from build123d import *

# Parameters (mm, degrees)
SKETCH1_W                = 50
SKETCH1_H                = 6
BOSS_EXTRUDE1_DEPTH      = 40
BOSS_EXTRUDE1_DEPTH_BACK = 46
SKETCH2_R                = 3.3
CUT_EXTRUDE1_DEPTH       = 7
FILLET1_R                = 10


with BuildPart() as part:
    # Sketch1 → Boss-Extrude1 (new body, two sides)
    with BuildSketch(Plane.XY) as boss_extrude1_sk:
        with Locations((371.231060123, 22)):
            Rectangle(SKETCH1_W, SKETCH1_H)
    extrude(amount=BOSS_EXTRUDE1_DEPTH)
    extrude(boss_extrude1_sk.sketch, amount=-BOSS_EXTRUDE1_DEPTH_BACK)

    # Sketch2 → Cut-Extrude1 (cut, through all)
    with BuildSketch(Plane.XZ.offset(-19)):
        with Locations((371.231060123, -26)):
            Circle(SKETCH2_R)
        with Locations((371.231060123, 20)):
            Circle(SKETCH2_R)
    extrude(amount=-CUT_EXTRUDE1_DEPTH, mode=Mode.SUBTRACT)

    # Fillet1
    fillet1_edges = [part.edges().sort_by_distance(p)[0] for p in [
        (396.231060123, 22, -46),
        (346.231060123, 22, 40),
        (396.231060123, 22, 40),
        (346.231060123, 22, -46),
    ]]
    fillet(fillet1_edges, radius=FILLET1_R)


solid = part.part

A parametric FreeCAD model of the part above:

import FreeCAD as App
import Part
import Sketcher

V = App.Vector


def edges_at(feature, points):
    """Names of the edges that pass closest to the given points."""
    edges = feature.Shape.Edges
    near = lambda p: min(range(len(edges)), key=lambda i: edges[i].distToShape(Part.Vertex(*p))[0])
    return sorted({f"Edge{near(p) + 1}" for p in points})

doc = App.newDocument("Part")
body = doc.addObject("PartDesign::Body", "Body")

# Sketch on XY plane
sketch1 = doc.addObject("Sketcher::SketchObject", "Sketch")
body.addObject(sketch1)
sketch1.AttachmentSupport = (doc.XY_Plane, [""])
sketch1.MapMode = "FlatFace"
sketch1.addGeometry([
    Part.LineSegment(V(346.23106, 25, 0), V(346.23106, 19, 0)),
    Part.LineSegment(V(346.23106, 19, 0), V(396.23106, 19, 0)),
    Part.LineSegment(V(396.23106, 19, 0), V(396.23106, 25, 0)),
    Part.LineSegment(V(396.23106, 25, 0), V(346.23106, 25, 0)),
], False)
sketch1.addConstraint([
    Sketcher.Constraint("Coincident", 0, 2, 1, 1),
    Sketcher.Constraint("Coincident", 1, 2, 2, 1),
    Sketcher.Constraint("Coincident", 2, 2, 3, 1),
    Sketcher.Constraint("Coincident", 3, 2, 0, 1),
    Sketcher.Constraint("Vertical", 0),
    Sketcher.Constraint("Horizontal", 1),
    Sketcher.Constraint("Vertical", 2),
    Sketcher.Constraint("Horizontal", 3),
    Sketcher.Constraint("DistanceX", 1, 1, 1, 2, 50.0),
    Sketcher.Constraint("DistanceY", 0, 2, 0, 1, 6.0),
    Sketcher.Constraint("DistanceY", -1, 1, 0, 2, 19.0),
    Sketcher.Constraint("DistanceX", -1, 1, 0, 2, 346.23106),
])
pad1 = doc.addObject("PartDesign::Pad", "Pad")
body.addObject(pad1)
pad1.Profile = sketch1
pad1.Type = "TwoLengths"
pad1.Length = 40
pad1.Length2 = 46

# Sketch on XZ plane
sketch2 = doc.addObject("Sketcher::SketchObject", "Sketch001")
body.addObject(sketch2)
sketch2.AttachmentSupport = (doc.XZ_Plane, [""])
sketch2.MapMode = "FlatFace"
sketch2.AttachmentOffset = App.Placement(V(0, 0, -19), App.Rotation())
sketch2.addGeometry([
    Part.Circle(V(371.23106, -26, 0), V(0, 0, 1), 3.3),
    Part.Circle(V(371.23106, 20, 0), V(0, 0, 1), 3.3),
], False)
sketch2.addConstraint([
    Sketcher.Constraint("Equal", 0, 1),
    Sketcher.Constraint("Vertical", 0, 3, 1, 3),
    Sketcher.Constraint("Diameter", 0, 6.6),
    Sketcher.Constraint("DistanceY", 0, 3, -1, 1, 26.0),
    Sketcher.Constraint("DistanceY", -1, 1, 1, 3, 20.0),
    Sketcher.Constraint("DistanceX", -1, 1, 0, 3, 371.23106),
])
pocket1 = doc.addObject("PartDesign::Pocket", "Pocket")
body.addObject(pocket1)
pocket1.Profile = sketch2
pocket1.Type = "ThroughAll"
doc.recompute()

fillet = doc.addObject("PartDesign::Fillet", "Fillet")
body.addObject(fillet)
fillet.Base = (pocket1, edges_at(pocket1, [
    (396.231, 22, -46),
    (346.231, 22, 40),
    (396.231, 22, 40),
    (346.231, 22, -46),
]))
fillet.Radius = 10

doc.recompute()
